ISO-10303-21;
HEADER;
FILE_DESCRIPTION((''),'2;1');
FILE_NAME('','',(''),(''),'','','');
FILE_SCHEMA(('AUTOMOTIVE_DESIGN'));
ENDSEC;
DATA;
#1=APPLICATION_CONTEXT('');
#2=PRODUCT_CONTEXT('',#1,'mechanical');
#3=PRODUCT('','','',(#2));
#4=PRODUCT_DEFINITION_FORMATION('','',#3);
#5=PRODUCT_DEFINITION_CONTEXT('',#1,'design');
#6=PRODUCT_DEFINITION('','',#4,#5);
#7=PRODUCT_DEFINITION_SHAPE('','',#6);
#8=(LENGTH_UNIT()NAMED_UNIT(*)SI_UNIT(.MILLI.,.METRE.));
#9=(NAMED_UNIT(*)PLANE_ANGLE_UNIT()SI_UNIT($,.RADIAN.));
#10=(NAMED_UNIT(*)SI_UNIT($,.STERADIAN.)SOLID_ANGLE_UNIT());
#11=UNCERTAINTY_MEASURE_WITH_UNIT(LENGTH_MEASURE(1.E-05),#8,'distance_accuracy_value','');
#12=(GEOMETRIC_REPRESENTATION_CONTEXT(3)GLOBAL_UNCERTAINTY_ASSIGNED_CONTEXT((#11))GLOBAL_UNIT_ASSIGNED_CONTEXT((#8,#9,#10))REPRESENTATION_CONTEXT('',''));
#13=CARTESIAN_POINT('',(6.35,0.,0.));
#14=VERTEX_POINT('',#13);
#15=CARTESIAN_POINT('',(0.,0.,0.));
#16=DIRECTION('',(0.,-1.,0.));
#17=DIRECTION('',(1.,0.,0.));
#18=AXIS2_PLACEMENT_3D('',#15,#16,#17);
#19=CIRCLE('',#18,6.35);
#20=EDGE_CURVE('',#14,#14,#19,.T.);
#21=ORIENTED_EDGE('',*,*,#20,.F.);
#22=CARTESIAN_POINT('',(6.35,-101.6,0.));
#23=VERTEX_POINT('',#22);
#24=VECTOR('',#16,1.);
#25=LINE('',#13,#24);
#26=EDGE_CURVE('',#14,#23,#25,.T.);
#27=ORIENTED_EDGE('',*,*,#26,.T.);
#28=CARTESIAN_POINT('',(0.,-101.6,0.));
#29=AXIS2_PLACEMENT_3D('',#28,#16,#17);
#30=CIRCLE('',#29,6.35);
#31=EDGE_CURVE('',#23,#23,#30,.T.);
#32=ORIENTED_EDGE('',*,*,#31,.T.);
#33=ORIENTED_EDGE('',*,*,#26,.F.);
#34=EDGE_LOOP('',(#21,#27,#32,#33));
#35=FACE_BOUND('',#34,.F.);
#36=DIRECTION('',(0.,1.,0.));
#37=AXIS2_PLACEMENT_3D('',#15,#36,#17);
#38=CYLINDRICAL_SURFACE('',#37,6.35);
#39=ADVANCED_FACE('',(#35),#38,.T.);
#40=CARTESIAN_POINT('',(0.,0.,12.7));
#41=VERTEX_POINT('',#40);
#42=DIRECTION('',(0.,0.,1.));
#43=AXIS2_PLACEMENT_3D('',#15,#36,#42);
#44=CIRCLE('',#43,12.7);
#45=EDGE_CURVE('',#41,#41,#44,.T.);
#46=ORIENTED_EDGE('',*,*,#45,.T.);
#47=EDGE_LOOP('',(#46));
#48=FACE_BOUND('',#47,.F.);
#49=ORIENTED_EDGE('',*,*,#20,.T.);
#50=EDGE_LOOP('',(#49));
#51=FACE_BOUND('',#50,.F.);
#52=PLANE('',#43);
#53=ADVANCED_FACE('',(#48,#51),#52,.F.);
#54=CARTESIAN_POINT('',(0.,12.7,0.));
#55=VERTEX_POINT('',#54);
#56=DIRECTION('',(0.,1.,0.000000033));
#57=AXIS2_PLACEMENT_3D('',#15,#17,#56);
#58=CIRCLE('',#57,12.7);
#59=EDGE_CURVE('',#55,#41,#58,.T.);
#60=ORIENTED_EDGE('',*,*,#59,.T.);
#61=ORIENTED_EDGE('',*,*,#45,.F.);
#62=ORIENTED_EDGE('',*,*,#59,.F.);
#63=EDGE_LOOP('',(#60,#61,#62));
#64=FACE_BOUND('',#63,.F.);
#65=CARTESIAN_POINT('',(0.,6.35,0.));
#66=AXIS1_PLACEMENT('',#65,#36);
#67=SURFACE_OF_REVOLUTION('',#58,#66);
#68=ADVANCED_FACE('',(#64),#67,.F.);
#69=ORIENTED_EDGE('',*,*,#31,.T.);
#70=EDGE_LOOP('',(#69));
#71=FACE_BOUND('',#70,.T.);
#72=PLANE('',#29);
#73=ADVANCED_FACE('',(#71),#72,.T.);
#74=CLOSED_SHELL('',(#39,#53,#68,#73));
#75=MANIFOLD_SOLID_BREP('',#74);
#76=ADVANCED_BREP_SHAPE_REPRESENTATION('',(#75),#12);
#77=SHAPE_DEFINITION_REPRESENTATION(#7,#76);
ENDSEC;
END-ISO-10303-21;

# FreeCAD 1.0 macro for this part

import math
import FreeCAD as App
import Part
import Sketcher
from FreeCAD import Vector
Q = App.Units.Quantity

doc = App.newDocument("Part")
body = doc.addObject("PartDesign::Body", "Body")

# Sketch on XZ plane
sketch1 = body.newObject("Sketcher::SketchObject", "Sketch")
sketch1.AttachmentSupport = (doc.getObject("XZ_Plane"), [""])
sketch1.MapMode = "FlatFace"
sketch1.addGeometry(Part.Circle(Vector(0, 0, 0), Vector(0, 0, 1), 6), False)
sketch1.addConstraint(Sketcher.Constraint("Coincident", 0, 3, -1, 1))
sketch1.addConstraint(Sketcher.Constraint("Diameter", 0, Q("0.5 in")))
pad1 = body.newObject("PartDesign::Pad", "Pad")
pad1.Profile = sketch1
pad1.Length = Q("4 in")

# Sketch on YZ plane
sketch2 = body.newObject("Sketcher::SketchObject", "Sketch001")
sketch2.AttachmentSupport = (doc.getObject("YZ_Plane"), [""])
sketch2.MapMode = "FlatFace"
sketch2.addGeometry(Part.LineSegment(Vector(0, 13, 0), Vector(0, 0, 0)), False)
sketch2.addGeometry(Part.LineSegment(Vector(0, 0, 0), Vector(13, 0, 0)), False)
sketch2.addGeometry(Part.ArcOfCircle(Part.Circle(Vector(0, 0, 0), Vector(0, 0, 1), 13), math.radians(0), math.radians(90)), False)
sketch2.addConstraint(Sketcher.Constraint("Coincident", 0, 2, 1, 1))
sketch2.addConstraint(Sketcher.Constraint("Coincident", 1, 2, 2, 1))
sketch2.addConstraint(Sketcher.Constraint("Coincident", 2, 2, 0, 1))
sketch2.addConstraint(Sketcher.Constraint("Vertical", 0))
sketch2.addConstraint(Sketcher.Constraint("Horizontal", 1))
sketch2.addConstraint(Sketcher.Constraint("Coincident", 2, 3, -1, 1))
sketch2.addConstraint(Sketcher.Constraint("Coincident", 0, 2, -1, 1))
sketch2.addConstraint(Sketcher.Constraint("Radius", 2, Q("0.5 in")))
revolution = body.newObject("PartDesign::Revolution", "Revolution")
revolution.Profile = sketch2
revolution.ReferenceAxis = (sketch2, ["H_Axis"])
revolution.Angle = 360

doc.recompute()
